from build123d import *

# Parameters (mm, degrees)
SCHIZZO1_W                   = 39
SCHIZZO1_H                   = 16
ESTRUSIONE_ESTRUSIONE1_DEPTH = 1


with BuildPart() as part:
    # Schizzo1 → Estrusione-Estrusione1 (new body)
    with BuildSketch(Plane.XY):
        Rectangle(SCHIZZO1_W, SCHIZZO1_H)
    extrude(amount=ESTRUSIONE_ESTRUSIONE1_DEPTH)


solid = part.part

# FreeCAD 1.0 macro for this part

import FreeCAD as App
import Part
import Sketcher


def add_polygon(sketch, points):
    """Adds a closed chain of lines whose ends are joined by coincident constraints."""
    first, n = sketch.GeometryCount, len(points)
    for a, b in zip(points, points[1:] + points[:1]):
        sketch.addGeometry(Part.LineSegment(App.Vector(*a, 0), App.Vector(*b, 0)), False)
    for i in range(n):
        sketch.addConstraint(Sketcher.Constraint("Coincident", first + i, 2, first + (i + 1) % n, 1))

doc = App.newDocument("Part")
body = doc.addObject("PartDesign::Body", "Body")

# Sketch on XY plane
sketch1 = doc.addObject("Sketcher::SketchObject", "Sketch")
body.addObject(sketch1)
sketch1.AttachmentSupport = (doc.XY_Plane, [""])
sketch1.MapMode = "FlatFace"
add_polygon(sketch1, [(-20, 8), (-20, -8), (20, -8), (20, 8)])  # lines 0-3
sketch1.addConstraint([
    Sketcher.Constraint("Vertical", 0),
    Sketcher.Constraint("Horizontal", 1),
    Sketcher.Constraint("Vertical", 2),
    Sketcher.Constraint("Horizontal", 3),
    Sketcher.Constraint("Symmetric", 0, 2, 2, 2, -1, 1),
    Sketcher.Constraint("DistanceX", 1, 1, 1, 2, 39.0),
    Sketcher.Constraint("DistanceY", 0, 2, 0, 1, 16.0),
])
pad1 = doc.addObject("PartDesign::Pad", "Pad")
body.addObject(pad1)
pad1.Profile = sketch1
pad1.Length = 1

doc.recompute()
